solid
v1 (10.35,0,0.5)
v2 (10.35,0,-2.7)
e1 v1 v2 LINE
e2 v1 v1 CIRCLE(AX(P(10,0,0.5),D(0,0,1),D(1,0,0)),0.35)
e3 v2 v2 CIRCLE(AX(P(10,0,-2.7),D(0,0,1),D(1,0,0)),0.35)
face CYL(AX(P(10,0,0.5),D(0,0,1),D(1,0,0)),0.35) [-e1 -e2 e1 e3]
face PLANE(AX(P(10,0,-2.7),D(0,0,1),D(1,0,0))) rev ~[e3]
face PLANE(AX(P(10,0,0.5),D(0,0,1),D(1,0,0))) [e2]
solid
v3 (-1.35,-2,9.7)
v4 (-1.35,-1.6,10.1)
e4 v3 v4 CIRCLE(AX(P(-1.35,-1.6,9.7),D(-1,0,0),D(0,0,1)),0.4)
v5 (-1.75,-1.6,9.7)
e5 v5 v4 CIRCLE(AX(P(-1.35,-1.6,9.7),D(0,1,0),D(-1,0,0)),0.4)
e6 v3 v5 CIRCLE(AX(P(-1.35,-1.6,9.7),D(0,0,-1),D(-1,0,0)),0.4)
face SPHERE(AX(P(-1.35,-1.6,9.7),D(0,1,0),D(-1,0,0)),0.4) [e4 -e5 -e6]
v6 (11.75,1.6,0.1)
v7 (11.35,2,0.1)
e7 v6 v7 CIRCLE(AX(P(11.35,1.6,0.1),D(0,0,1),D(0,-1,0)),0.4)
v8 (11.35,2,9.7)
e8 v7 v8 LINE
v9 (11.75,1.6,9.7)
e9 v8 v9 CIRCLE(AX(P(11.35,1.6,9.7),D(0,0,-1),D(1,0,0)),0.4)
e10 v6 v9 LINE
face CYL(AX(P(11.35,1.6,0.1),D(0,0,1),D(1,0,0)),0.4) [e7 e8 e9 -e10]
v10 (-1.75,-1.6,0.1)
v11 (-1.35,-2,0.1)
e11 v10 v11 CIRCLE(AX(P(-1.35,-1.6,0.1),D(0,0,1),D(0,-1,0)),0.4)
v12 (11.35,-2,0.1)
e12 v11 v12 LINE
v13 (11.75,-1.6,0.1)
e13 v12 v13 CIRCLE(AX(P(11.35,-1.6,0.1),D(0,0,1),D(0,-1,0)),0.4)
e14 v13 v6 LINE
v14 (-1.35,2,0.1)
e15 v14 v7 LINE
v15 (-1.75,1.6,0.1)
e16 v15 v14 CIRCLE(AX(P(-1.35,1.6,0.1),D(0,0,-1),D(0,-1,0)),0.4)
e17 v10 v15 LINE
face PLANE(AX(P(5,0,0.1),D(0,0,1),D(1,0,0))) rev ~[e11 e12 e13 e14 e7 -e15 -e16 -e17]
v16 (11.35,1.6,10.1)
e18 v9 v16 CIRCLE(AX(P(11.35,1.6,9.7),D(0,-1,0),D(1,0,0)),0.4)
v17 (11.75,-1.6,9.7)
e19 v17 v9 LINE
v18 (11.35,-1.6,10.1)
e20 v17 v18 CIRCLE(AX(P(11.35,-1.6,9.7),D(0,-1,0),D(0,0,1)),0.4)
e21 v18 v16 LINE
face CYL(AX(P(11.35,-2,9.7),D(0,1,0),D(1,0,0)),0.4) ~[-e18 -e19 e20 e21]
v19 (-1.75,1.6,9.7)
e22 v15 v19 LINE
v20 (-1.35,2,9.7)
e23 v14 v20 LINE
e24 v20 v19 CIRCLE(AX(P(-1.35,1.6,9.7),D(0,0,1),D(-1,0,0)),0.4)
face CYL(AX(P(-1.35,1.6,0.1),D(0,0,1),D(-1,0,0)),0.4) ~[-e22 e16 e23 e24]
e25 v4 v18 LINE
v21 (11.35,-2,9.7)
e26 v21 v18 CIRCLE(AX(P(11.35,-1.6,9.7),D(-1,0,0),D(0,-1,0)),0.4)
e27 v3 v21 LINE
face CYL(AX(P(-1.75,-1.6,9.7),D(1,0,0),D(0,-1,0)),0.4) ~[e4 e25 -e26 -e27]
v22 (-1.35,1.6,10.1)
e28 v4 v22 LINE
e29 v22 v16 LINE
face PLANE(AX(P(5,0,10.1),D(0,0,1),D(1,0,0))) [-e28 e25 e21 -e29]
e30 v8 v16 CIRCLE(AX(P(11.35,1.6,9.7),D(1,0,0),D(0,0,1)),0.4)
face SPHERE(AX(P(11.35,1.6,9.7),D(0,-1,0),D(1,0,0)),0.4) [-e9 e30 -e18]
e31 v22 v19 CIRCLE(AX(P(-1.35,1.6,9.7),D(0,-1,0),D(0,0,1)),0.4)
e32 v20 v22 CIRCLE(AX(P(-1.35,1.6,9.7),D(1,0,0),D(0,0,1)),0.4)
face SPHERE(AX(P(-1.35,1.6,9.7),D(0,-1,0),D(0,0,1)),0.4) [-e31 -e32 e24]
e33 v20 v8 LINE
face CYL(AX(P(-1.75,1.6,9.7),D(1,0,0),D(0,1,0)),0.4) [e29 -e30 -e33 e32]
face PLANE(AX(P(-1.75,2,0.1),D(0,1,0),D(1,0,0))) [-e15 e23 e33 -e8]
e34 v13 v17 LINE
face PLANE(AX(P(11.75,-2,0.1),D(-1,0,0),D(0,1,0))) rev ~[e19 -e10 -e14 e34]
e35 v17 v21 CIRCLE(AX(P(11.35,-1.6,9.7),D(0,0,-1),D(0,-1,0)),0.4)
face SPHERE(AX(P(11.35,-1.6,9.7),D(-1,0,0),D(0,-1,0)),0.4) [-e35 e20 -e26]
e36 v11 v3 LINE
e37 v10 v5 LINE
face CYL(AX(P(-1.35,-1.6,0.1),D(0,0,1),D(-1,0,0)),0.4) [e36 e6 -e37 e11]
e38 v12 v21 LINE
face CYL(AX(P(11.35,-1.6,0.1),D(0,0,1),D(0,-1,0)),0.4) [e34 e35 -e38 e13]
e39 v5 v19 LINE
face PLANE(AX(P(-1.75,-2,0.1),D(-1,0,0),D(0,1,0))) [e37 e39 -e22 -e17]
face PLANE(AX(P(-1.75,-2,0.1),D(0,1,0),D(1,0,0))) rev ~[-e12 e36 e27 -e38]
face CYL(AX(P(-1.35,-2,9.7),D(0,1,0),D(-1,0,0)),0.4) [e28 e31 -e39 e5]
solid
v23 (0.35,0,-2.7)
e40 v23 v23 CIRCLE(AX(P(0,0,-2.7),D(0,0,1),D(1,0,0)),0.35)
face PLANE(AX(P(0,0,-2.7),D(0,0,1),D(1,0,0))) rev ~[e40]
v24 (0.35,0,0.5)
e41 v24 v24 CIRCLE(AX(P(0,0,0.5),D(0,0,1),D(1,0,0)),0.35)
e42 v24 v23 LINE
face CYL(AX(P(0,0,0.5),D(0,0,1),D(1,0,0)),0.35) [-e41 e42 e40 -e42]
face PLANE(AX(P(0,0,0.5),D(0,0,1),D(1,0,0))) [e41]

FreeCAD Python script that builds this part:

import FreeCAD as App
import Part
import Sketcher
from FreeCAD import Vector
Q = App.Units.Quantity


def edges_at(feature, points):
    """Names of the edges that pass closest to the given points."""
    edges = feature.Shape.Edges
    near = lambda p: min(range(len(edges)), key=lambda i: edges[i].distToShape(Part.Vertex(*p))[0])
    return sorted({f"Edge{near(p) + 1}" for p in points})

doc = App.newDocument("Part")
body = doc.addObject("PartDesign::Body", "Body")

# Sketch on XY plane
sketch1 = body.newObject("Sketcher::SketchObject", "Sketch")
sketch1.AttachmentSupport = (doc.getObject("XY_Plane"), [""])
sketch1.MapMode = "FlatFace"
sketch1.AttachmentOffset = App.Placement(Vector(0, 0, 0.1), App.Rotation())
sketch1.addGeometry(Part.LineSegment(Vector(-1.8, 2, 0), Vector(-1.8, -2, 0)), False)
sketch1.addGeometry(Part.LineSegment(Vector(-1.8, -2, 0), Vector(11.8, -2, 0)), False)
sketch1.addGeometry(Part.LineSegment(Vector(11.8, -2, 0), Vector(11.8, 2, 0)), False)
sketch1.addGeometry(Part.LineSegment(Vector(11.8, 2, 0), Vector(-1.8, 2, 0)), False)
sketch1.addConstraint(Sketcher.Constraint("Coincident", 0, 2, 1, 1))
sketch1.addConstraint(Sketcher.Constraint("Coincident", 1, 2, 2, 1))
sketch1.addConstraint(Sketcher.Constraint("Coincident", 2, 2, 3, 1))
sketch1.addConstraint(Sketcher.Constraint("Coincident", 3, 2, 0, 1))
sketch1.addConstraint(Sketcher.Constraint("Vertical", 0))
sketch1.addConstraint(Sketcher.Constraint("Horizontal", 1))
sketch1.addConstraint(Sketcher.Constraint("Vertical", 2))
sketch1.addConstraint(Sketcher.Constraint("Horizontal", 3))
sketch1.addConstraint(Sketcher.Constraint("DistanceY", 0, 2, 0, 1, Q("4 mm")))
sketch1.addConstraint(Sketcher.Constraint("DistanceX", 1, 1, 1, 2, Q("13.5 mm")))
sketch1.addConstraint(Sketcher.Constraint("DistanceY", 0, 2, -1, 1, Q("2 mm")))
sketch1.addConstraint(Sketcher.Constraint("DistanceX", 0, 2, -1, 1, Q("1.75 mm")))
pad1 = body.newObject("PartDesign::Pad", "Pad")
pad1.Profile = sketch1
pad1.Length = 10
doc.recompute()

fillet = body.newObject("PartDesign::Fillet", "Fillet")
fillet.Base = (pad1, edges_at(pad1, [
    (-1.75, 0, 10.1),
    (-1.75, -2, 5.1),
    (5, -2, 10.1),
    (11.75, -2, 5.1),
    (11.75, 0, 10.1),
    (11.75, 2, 5.1),
    (5, 2, 10.1),
    (-1.75, 2, 5.1),
]))
fillet.Radius = 0.4
body2 = doc.addObject("PartDesign::Body", "Body001")
body2.AllowCompound = True

# Sketch on XY plane
sketch2 = body2.newObject("Sketcher::SketchObject", "Sketch001")
sketch2.AttachmentSupport = (doc.getObject("XY_Plane001"), [""])
sketch2.MapMode = "FlatFace"
sketch2.AttachmentOffset = App.Placement(Vector(0, 0, 0.5), App.Rotation())
sketch2.addGeometry(Part.Circle(Vector(0, 0, 0), Vector(0, 0, 1), 0.35), False)
sketch2.addGeometry(Part.Circle(Vector(10, 0, 0), Vector(0, 0, 1), 0.35), False)
sketch2.addConstraint(Sketcher.Constraint("Coincident", 0, 3, -1, 1))
sketch2.addConstraint(Sketcher.Constraint("Equal", 0, 1))
sketch2.addConstraint(Sketcher.Constraint("PointOnObject", 1, 3, -1))
sketch2.addConstraint(Sketcher.Constraint("Diameter", 0, Q("0.7 mm")))
sketch2.addConstraint(Sketcher.Constraint("DistanceX", -1, 1, 1, 3, Q("10 mm")))
pad2 = body2.newObject("PartDesign::Pad", "Pad001")
pad2.Profile = sketch2
pad2.Length = 3.2
pad2.Reversed = True

doc.recompute()
